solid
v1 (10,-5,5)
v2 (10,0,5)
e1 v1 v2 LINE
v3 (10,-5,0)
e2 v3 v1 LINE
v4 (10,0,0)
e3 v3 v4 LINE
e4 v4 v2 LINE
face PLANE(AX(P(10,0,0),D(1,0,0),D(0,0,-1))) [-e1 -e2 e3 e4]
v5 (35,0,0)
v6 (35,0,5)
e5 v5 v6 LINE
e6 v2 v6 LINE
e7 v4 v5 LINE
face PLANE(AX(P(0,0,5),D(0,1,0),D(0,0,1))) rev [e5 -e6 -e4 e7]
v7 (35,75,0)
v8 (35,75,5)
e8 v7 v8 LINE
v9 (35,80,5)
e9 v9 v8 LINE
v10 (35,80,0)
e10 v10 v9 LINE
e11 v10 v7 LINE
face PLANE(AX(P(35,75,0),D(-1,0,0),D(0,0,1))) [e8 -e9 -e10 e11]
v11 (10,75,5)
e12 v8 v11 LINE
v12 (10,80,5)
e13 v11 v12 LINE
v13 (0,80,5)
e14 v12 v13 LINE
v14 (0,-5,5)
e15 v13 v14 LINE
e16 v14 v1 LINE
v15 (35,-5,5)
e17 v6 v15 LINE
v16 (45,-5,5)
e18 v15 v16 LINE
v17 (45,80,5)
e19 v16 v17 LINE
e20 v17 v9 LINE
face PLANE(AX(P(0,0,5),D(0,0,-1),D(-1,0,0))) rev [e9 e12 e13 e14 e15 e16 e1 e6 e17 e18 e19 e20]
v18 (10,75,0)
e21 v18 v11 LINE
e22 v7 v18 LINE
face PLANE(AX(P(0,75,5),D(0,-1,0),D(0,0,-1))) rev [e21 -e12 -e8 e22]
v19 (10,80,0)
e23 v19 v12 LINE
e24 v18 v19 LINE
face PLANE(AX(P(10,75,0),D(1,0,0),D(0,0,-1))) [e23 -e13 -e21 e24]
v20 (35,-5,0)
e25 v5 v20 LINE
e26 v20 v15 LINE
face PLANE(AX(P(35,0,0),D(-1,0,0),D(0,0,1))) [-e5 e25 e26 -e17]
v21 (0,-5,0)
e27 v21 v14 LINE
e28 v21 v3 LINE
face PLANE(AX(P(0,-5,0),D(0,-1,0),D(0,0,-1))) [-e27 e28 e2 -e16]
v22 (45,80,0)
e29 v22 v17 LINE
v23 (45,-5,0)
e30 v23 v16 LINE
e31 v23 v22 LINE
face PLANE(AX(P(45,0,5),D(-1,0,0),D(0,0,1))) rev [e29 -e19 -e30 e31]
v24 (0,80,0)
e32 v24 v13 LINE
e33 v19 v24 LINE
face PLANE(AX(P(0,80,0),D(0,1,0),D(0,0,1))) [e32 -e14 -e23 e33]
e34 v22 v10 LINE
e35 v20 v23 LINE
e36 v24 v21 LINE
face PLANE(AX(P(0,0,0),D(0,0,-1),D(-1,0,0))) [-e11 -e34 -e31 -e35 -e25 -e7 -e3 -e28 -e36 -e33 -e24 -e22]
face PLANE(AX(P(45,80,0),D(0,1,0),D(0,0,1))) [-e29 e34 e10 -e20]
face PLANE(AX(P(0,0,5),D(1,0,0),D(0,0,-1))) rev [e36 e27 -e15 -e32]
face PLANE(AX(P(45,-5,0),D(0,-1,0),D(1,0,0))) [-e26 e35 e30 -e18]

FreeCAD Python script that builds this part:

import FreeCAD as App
import Part
import Sketcher

doc = App.newDocument("Part")
body = doc.addObject("PartDesign::Body", "Body")

# Sketch on XY plane
sketch1 = body.newObject("Sketcher::SketchObject", "Sketch")
sketch1.AttachmentSupport = (doc.getObject("XY_Plane"), [""])
sketch1.MapMode = "FlatFace"
sketch1.addGeometry([
    Part.LineSegment(App.Vector(0, 75, 0), App.Vector(0, 0, 0)),
    Part.LineSegment(App.Vector(0, 0, 0), App.Vector(45, 0, 0)),
    Part.LineSegment(App.Vector(45, 0, 0), App.Vector(45, 75, 0)),
    Part.LineSegment(App.Vector(45, 75, 0), App.Vector(0, 75, 0)),
], False)
sketch1.addConstraint([
    Sketcher.Constraint("Coincident", 0, 2, 1, 1),
    Sketcher.Constraint("Coincident", 1, 2, 2, 1),
    Sketcher.Constraint("Coincident", 2, 2, 3, 1),
    Sketcher.Constraint("Coincident", 3, 2, 0, 1),
    Sketcher.Constraint("Vertical", 0),
    Sketcher.Constraint("Horizontal", 1),
    Sketcher.Constraint("Vertical", 2),
    Sketcher.Constraint("Horizontal", 3),
    Sketcher.Constraint("Coincident", 0, 2, -1, 1),
    Sketcher.Constraint("DistanceX", 1, 1, 1, 2, 45.0),
    Sketcher.Constraint("DistanceY", 0, 2, 0, 1, 75.0),
])
pad1 = body.newObject("PartDesign::Pad", "Pad")
pad1.Profile = sketch1
pad1.Length = 5

# Sketch on XY plane
sketch2 = body.newObject("Sketcher::SketchObject", "Sketch001")
sketch2.AttachmentSupport = (doc.getObject("XY_Plane"), [""])
sketch2.MapMode = "FlatFace"
sketch2.AttachmentOffset = App.Placement(App.Vector(0, 0, 5), App.Rotation())
sketch2.addGeometry([
    Part.LineSegment(App.Vector(0, 80, 0), App.Vector(0, 75, 0)),  # 0
    Part.LineSegment(App.Vector(0, 75, 0), App.Vector(10, 75, 0)),  # 1
    Part.LineSegment(App.Vector(10, 75, 0), App.Vector(10, 80, 0)),  # 2
    Part.LineSegment(App.Vector(10, 80, 0), App.Vector(0, 80, 0)),  # 3
    Part.LineSegment(App.Vector(35, 80, 0), App.Vector(35, 75, 0)),  # 4
    Part.LineSegment(App.Vector(35, 75, 0), App.Vector(45, 75, 0)),  # 5
    Part.LineSegment(App.Vector(45, 75, 0), App.Vector(45, 80, 0)),  # 6
    Part.LineSegment(App.Vector(45, 80, 0), App.Vector(35, 80, 0)),  # 7
    Part.LineSegment(App.Vector(0, 0, 0), App.Vector(0, -5, 0)),  # 8
    Part.LineSegment(App.Vector(0, -5, 0), App.Vector(10, -5, 0)),  # 9
    Part.LineSegment(App.Vector(10, -5, 0), App.Vector(10, 0, 0)),  # 10
    Part.LineSegment(App.Vector(10, 0, 0), App.Vector(0, 0, 0)),  # 11
    Part.LineSegment(App.Vector(35, 0, 0), App.Vector(35, -5, 0)),  # 12
    Part.LineSegment(App.Vector(35, -5, 0), App.Vector(45, -5, 0)),  # 13
    Part.LineSegment(App.Vector(45, -5, 0), App.Vector(45, 0, 0)),  # 14
    Part.LineSegment(App.Vector(45, 0, 0), App.Vector(35, 0, 0)),  # 15
], False)
sketch2.addConstraint([
    Sketcher.Constraint("Coincident", 0, 2, 1, 1),
    Sketcher.Constraint("Coincident", 1, 2, 2, 1),
    Sketcher.Constraint("Coincident", 2, 2, 3, 1),
    Sketcher.Constraint("Coincident", 3, 2, 0, 1),
    Sketcher.Constraint("Coincident", 4, 2, 5, 1),
    Sketcher.Constraint("Coincident", 5, 2, 6, 1),
    Sketcher.Constraint("Coincident", 6, 2, 7, 1),
    Sketcher.Constraint("Coincident", 7, 2, 4, 1),
    Sketcher.Constraint("Coincident", 8, 2, 9, 1),
    Sketcher.Constraint("Coincident", 9, 2, 10, 1),
    Sketcher.Constraint("Coincident", 10, 2, 11, 1),
    Sketcher.Constraint("Coincident", 11, 2, 8, 1),
    Sketcher.Constraint("Coincident", 12, 2, 13, 1),
    Sketcher.Constraint("Coincident", 13, 2, 14, 1),
    Sketcher.Constraint("Coincident", 14, 2, 15, 1),
    Sketcher.Constraint("Coincident", 15, 2, 12, 1),
    Sketcher.Constraint("Vertical", 0),
    Sketcher.Constraint("Horizontal", 1),
    Sketcher.Constraint("Vertical", 2),
    Sketcher.Constraint("Horizontal", 3),
    Sketcher.Constraint("Vertical", 4),
    Sketcher.Constraint("Horizontal", 5),
    Sketcher.Constraint("Vertical", 6),
    Sketcher.Constraint("Horizontal", 7),
    Sketcher.Constraint("Vertical", 8),
    Sketcher.Constraint("Horizontal", 9),
    Sketcher.Constraint("Vertical", 10),
    Sketcher.Constraint("Horizontal", 11),
    Sketcher.Constraint("Vertical", 12),
    Sketcher.Constraint("Horizontal", 13),
    Sketcher.Constraint("Vertical", 14),
    Sketcher.Constraint("Horizontal", 15),
    Sketcher.Constraint("Coincident", 11, 2, -1, 1),
    Sketcher.Constraint("PointOnObject", 0, 2, -2),
    Sketcher.Constraint("PointOnObject", 14, 2, -1),
    Sketcher.Constraint("Horizontal", 1, 2, 4, 2),
    Sketcher.Constraint("Horizontal", 3, 2, 6, 2),
    Sketcher.Constraint("Horizontal", 9, 2, 12, 2),
    Sketcher.Constraint("Vertical", 2, 2, 9, 2),
    Sketcher.Constraint("Vertical", 7, 2, 12, 2),
    Sketcher.Constraint("Vertical", 6, 2, 13, 2),
    Sketcher.Constraint("Equal", 3, 5),
    Sketcher.Constraint("Equal", 6, 8),
    Sketcher.Constraint("DistanceX", 1, 1, 1, 2, 10.0),
    Sketcher.Constraint("DistanceY", 0, 2, 0, 1, 5.0),
    Sketcher.Constraint("DistanceY", -1, 1, 0, 2, 75.0),
    Sketcher.Constraint("DistanceX", -1, 1, 4, 2, 35.0),
])
pad2 = body.newObject("PartDesign::Pad", "Pad001")
pad2.Profile = sketch2
pad2.Length = 5
pad2.Reversed = True

doc.recompute()
